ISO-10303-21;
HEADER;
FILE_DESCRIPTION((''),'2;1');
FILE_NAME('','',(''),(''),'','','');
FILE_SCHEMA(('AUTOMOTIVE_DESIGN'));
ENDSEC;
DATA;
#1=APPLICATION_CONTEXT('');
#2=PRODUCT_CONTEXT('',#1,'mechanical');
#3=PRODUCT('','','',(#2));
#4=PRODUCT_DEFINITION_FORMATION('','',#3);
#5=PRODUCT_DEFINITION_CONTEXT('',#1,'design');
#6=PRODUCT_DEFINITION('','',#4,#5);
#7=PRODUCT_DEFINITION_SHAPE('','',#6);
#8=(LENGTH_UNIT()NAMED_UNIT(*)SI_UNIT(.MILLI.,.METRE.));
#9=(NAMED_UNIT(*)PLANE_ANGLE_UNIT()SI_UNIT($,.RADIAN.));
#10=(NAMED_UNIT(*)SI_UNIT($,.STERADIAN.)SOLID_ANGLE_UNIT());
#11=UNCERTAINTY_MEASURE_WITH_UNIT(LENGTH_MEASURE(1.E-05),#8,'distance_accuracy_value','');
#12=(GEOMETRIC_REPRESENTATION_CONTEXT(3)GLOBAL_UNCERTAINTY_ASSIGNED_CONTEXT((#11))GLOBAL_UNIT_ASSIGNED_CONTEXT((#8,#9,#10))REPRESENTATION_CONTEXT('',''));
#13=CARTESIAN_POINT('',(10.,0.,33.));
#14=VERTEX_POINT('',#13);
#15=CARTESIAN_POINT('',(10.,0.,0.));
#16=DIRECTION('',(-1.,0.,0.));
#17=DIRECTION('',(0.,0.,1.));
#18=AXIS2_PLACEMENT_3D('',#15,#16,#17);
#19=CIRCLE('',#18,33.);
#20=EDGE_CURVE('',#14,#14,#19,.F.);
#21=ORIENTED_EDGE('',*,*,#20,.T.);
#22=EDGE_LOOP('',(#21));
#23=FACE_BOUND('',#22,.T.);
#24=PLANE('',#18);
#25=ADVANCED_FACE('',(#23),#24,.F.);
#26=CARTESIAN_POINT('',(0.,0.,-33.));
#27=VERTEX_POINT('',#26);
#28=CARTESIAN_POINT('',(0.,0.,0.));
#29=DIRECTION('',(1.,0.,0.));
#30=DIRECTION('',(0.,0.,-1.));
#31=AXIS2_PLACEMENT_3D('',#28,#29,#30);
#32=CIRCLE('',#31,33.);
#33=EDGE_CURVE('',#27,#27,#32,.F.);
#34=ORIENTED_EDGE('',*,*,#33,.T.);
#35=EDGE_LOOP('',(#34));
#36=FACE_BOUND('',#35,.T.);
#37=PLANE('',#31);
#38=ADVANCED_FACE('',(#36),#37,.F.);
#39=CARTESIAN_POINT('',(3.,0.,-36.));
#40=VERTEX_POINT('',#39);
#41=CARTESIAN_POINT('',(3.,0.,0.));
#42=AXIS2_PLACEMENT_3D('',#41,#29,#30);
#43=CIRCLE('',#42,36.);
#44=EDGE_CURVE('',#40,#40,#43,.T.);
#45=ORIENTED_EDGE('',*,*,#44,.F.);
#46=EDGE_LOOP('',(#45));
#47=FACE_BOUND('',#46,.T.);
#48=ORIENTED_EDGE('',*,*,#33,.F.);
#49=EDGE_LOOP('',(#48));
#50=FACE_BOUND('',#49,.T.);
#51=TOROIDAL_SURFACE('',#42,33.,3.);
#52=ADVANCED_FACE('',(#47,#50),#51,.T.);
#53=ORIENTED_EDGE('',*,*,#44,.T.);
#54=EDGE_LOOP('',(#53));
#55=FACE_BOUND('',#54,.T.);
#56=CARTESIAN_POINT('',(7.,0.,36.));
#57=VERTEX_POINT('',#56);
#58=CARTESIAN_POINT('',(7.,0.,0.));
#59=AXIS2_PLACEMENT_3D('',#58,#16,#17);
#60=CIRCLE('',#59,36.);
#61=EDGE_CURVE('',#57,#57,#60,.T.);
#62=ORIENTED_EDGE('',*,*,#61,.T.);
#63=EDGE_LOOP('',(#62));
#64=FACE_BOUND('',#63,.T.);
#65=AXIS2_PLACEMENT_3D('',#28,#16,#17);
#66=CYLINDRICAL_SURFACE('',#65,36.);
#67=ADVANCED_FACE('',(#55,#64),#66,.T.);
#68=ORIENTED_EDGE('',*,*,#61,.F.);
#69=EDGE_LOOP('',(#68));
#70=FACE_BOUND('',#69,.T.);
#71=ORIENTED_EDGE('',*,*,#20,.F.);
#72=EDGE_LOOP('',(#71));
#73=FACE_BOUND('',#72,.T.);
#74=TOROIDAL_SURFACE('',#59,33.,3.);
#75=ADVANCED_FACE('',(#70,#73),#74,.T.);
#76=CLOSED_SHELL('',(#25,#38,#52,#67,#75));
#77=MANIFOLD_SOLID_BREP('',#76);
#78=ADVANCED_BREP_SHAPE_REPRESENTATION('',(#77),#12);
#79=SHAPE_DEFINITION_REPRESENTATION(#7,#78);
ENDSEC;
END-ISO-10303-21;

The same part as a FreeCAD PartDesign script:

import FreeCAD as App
import Part
import Sketcher

V = App.Vector


def edges_at(feature, points):
    """Names of the edges that pass closest to the given points."""
    edges = feature.Shape.Edges
    near = lambda p: min(range(len(edges)), key=lambda i: edges[i].distToShape(Part.Vertex(*p))[0])
    return sorted({f"Edge{near(p) + 1}" for p in points})

doc = App.newDocument("Part")
body = doc.addObject("PartDesign::Body", "Body")

# Sketch on XY plane
sketch1 = doc.addObject("Sketcher::SketchObject", "Sketch")
body.addObject(sketch1)
sketch1.AttachmentSupport = (doc.XY_Plane, [""])
sketch1.MapMode = "FlatFace"
sketch1.addGeometry(Part.LineSegment(V(0, 36, 0), V(0, 0, 0)), False)
sketch1.addGeometry(Part.LineSegment(V(0, 0, 0), V(10, 0, 0)), False)
sketch1.addGeometry(Part.LineSegment(V(10, 0, 0), V(10, 36, 0)), False)
sketch1.addGeometry(Part.LineSegment(V(10, 36, 0), V(0, 36, 0)), False)
sketch1.addConstraint(Sketcher.Constraint("Coincident", 0, 2, 1, 1))
sketch1.addConstraint(Sketcher.Constraint("Coincident", 1, 2, 2, 1))
sketch1.addConstraint(Sketcher.Constraint("Coincident", 2, 2, 3, 1))
sketch1.addConstraint(Sketcher.Constraint("Coincident", 3, 2, 0, 1))
sketch1.addConstraint(Sketcher.Constraint("Vertical", 0))
sketch1.addConstraint(Sketcher.Constraint("Horizontal", 1))
sketch1.addConstraint(Sketcher.Constraint("Vertical", 2))
sketch1.addConstraint(Sketcher.Constraint("Horizontal", 3))
sketch1.addConstraint(Sketcher.Constraint("Coincident", 0, 2, -1, 1))
sketch1.addConstraint(Sketcher.Constraint("DistanceX", 1, 1, 1, 2, 10.0))
sketch1.addConstraint(Sketcher.Constraint("DistanceY", 0, 2, 0, 1, 36.0))
revolution = doc.addObject("PartDesign::Revolution", "Revolution")
body.addObject(revolution)
revolution.Profile = sketch1
revolution.ReferenceAxis = (sketch1, ["H_Axis"])
revolution.Angle = 360
doc.recompute()

fillet = doc.addObject("PartDesign::Fillet", "Fillet")
body.addObject(fillet)
fillet.Base = (revolution, edges_at(revolution, [(10, 0, -36), (0, 0, -36)]))
fillet.Radius = 3

doc.recompute()
